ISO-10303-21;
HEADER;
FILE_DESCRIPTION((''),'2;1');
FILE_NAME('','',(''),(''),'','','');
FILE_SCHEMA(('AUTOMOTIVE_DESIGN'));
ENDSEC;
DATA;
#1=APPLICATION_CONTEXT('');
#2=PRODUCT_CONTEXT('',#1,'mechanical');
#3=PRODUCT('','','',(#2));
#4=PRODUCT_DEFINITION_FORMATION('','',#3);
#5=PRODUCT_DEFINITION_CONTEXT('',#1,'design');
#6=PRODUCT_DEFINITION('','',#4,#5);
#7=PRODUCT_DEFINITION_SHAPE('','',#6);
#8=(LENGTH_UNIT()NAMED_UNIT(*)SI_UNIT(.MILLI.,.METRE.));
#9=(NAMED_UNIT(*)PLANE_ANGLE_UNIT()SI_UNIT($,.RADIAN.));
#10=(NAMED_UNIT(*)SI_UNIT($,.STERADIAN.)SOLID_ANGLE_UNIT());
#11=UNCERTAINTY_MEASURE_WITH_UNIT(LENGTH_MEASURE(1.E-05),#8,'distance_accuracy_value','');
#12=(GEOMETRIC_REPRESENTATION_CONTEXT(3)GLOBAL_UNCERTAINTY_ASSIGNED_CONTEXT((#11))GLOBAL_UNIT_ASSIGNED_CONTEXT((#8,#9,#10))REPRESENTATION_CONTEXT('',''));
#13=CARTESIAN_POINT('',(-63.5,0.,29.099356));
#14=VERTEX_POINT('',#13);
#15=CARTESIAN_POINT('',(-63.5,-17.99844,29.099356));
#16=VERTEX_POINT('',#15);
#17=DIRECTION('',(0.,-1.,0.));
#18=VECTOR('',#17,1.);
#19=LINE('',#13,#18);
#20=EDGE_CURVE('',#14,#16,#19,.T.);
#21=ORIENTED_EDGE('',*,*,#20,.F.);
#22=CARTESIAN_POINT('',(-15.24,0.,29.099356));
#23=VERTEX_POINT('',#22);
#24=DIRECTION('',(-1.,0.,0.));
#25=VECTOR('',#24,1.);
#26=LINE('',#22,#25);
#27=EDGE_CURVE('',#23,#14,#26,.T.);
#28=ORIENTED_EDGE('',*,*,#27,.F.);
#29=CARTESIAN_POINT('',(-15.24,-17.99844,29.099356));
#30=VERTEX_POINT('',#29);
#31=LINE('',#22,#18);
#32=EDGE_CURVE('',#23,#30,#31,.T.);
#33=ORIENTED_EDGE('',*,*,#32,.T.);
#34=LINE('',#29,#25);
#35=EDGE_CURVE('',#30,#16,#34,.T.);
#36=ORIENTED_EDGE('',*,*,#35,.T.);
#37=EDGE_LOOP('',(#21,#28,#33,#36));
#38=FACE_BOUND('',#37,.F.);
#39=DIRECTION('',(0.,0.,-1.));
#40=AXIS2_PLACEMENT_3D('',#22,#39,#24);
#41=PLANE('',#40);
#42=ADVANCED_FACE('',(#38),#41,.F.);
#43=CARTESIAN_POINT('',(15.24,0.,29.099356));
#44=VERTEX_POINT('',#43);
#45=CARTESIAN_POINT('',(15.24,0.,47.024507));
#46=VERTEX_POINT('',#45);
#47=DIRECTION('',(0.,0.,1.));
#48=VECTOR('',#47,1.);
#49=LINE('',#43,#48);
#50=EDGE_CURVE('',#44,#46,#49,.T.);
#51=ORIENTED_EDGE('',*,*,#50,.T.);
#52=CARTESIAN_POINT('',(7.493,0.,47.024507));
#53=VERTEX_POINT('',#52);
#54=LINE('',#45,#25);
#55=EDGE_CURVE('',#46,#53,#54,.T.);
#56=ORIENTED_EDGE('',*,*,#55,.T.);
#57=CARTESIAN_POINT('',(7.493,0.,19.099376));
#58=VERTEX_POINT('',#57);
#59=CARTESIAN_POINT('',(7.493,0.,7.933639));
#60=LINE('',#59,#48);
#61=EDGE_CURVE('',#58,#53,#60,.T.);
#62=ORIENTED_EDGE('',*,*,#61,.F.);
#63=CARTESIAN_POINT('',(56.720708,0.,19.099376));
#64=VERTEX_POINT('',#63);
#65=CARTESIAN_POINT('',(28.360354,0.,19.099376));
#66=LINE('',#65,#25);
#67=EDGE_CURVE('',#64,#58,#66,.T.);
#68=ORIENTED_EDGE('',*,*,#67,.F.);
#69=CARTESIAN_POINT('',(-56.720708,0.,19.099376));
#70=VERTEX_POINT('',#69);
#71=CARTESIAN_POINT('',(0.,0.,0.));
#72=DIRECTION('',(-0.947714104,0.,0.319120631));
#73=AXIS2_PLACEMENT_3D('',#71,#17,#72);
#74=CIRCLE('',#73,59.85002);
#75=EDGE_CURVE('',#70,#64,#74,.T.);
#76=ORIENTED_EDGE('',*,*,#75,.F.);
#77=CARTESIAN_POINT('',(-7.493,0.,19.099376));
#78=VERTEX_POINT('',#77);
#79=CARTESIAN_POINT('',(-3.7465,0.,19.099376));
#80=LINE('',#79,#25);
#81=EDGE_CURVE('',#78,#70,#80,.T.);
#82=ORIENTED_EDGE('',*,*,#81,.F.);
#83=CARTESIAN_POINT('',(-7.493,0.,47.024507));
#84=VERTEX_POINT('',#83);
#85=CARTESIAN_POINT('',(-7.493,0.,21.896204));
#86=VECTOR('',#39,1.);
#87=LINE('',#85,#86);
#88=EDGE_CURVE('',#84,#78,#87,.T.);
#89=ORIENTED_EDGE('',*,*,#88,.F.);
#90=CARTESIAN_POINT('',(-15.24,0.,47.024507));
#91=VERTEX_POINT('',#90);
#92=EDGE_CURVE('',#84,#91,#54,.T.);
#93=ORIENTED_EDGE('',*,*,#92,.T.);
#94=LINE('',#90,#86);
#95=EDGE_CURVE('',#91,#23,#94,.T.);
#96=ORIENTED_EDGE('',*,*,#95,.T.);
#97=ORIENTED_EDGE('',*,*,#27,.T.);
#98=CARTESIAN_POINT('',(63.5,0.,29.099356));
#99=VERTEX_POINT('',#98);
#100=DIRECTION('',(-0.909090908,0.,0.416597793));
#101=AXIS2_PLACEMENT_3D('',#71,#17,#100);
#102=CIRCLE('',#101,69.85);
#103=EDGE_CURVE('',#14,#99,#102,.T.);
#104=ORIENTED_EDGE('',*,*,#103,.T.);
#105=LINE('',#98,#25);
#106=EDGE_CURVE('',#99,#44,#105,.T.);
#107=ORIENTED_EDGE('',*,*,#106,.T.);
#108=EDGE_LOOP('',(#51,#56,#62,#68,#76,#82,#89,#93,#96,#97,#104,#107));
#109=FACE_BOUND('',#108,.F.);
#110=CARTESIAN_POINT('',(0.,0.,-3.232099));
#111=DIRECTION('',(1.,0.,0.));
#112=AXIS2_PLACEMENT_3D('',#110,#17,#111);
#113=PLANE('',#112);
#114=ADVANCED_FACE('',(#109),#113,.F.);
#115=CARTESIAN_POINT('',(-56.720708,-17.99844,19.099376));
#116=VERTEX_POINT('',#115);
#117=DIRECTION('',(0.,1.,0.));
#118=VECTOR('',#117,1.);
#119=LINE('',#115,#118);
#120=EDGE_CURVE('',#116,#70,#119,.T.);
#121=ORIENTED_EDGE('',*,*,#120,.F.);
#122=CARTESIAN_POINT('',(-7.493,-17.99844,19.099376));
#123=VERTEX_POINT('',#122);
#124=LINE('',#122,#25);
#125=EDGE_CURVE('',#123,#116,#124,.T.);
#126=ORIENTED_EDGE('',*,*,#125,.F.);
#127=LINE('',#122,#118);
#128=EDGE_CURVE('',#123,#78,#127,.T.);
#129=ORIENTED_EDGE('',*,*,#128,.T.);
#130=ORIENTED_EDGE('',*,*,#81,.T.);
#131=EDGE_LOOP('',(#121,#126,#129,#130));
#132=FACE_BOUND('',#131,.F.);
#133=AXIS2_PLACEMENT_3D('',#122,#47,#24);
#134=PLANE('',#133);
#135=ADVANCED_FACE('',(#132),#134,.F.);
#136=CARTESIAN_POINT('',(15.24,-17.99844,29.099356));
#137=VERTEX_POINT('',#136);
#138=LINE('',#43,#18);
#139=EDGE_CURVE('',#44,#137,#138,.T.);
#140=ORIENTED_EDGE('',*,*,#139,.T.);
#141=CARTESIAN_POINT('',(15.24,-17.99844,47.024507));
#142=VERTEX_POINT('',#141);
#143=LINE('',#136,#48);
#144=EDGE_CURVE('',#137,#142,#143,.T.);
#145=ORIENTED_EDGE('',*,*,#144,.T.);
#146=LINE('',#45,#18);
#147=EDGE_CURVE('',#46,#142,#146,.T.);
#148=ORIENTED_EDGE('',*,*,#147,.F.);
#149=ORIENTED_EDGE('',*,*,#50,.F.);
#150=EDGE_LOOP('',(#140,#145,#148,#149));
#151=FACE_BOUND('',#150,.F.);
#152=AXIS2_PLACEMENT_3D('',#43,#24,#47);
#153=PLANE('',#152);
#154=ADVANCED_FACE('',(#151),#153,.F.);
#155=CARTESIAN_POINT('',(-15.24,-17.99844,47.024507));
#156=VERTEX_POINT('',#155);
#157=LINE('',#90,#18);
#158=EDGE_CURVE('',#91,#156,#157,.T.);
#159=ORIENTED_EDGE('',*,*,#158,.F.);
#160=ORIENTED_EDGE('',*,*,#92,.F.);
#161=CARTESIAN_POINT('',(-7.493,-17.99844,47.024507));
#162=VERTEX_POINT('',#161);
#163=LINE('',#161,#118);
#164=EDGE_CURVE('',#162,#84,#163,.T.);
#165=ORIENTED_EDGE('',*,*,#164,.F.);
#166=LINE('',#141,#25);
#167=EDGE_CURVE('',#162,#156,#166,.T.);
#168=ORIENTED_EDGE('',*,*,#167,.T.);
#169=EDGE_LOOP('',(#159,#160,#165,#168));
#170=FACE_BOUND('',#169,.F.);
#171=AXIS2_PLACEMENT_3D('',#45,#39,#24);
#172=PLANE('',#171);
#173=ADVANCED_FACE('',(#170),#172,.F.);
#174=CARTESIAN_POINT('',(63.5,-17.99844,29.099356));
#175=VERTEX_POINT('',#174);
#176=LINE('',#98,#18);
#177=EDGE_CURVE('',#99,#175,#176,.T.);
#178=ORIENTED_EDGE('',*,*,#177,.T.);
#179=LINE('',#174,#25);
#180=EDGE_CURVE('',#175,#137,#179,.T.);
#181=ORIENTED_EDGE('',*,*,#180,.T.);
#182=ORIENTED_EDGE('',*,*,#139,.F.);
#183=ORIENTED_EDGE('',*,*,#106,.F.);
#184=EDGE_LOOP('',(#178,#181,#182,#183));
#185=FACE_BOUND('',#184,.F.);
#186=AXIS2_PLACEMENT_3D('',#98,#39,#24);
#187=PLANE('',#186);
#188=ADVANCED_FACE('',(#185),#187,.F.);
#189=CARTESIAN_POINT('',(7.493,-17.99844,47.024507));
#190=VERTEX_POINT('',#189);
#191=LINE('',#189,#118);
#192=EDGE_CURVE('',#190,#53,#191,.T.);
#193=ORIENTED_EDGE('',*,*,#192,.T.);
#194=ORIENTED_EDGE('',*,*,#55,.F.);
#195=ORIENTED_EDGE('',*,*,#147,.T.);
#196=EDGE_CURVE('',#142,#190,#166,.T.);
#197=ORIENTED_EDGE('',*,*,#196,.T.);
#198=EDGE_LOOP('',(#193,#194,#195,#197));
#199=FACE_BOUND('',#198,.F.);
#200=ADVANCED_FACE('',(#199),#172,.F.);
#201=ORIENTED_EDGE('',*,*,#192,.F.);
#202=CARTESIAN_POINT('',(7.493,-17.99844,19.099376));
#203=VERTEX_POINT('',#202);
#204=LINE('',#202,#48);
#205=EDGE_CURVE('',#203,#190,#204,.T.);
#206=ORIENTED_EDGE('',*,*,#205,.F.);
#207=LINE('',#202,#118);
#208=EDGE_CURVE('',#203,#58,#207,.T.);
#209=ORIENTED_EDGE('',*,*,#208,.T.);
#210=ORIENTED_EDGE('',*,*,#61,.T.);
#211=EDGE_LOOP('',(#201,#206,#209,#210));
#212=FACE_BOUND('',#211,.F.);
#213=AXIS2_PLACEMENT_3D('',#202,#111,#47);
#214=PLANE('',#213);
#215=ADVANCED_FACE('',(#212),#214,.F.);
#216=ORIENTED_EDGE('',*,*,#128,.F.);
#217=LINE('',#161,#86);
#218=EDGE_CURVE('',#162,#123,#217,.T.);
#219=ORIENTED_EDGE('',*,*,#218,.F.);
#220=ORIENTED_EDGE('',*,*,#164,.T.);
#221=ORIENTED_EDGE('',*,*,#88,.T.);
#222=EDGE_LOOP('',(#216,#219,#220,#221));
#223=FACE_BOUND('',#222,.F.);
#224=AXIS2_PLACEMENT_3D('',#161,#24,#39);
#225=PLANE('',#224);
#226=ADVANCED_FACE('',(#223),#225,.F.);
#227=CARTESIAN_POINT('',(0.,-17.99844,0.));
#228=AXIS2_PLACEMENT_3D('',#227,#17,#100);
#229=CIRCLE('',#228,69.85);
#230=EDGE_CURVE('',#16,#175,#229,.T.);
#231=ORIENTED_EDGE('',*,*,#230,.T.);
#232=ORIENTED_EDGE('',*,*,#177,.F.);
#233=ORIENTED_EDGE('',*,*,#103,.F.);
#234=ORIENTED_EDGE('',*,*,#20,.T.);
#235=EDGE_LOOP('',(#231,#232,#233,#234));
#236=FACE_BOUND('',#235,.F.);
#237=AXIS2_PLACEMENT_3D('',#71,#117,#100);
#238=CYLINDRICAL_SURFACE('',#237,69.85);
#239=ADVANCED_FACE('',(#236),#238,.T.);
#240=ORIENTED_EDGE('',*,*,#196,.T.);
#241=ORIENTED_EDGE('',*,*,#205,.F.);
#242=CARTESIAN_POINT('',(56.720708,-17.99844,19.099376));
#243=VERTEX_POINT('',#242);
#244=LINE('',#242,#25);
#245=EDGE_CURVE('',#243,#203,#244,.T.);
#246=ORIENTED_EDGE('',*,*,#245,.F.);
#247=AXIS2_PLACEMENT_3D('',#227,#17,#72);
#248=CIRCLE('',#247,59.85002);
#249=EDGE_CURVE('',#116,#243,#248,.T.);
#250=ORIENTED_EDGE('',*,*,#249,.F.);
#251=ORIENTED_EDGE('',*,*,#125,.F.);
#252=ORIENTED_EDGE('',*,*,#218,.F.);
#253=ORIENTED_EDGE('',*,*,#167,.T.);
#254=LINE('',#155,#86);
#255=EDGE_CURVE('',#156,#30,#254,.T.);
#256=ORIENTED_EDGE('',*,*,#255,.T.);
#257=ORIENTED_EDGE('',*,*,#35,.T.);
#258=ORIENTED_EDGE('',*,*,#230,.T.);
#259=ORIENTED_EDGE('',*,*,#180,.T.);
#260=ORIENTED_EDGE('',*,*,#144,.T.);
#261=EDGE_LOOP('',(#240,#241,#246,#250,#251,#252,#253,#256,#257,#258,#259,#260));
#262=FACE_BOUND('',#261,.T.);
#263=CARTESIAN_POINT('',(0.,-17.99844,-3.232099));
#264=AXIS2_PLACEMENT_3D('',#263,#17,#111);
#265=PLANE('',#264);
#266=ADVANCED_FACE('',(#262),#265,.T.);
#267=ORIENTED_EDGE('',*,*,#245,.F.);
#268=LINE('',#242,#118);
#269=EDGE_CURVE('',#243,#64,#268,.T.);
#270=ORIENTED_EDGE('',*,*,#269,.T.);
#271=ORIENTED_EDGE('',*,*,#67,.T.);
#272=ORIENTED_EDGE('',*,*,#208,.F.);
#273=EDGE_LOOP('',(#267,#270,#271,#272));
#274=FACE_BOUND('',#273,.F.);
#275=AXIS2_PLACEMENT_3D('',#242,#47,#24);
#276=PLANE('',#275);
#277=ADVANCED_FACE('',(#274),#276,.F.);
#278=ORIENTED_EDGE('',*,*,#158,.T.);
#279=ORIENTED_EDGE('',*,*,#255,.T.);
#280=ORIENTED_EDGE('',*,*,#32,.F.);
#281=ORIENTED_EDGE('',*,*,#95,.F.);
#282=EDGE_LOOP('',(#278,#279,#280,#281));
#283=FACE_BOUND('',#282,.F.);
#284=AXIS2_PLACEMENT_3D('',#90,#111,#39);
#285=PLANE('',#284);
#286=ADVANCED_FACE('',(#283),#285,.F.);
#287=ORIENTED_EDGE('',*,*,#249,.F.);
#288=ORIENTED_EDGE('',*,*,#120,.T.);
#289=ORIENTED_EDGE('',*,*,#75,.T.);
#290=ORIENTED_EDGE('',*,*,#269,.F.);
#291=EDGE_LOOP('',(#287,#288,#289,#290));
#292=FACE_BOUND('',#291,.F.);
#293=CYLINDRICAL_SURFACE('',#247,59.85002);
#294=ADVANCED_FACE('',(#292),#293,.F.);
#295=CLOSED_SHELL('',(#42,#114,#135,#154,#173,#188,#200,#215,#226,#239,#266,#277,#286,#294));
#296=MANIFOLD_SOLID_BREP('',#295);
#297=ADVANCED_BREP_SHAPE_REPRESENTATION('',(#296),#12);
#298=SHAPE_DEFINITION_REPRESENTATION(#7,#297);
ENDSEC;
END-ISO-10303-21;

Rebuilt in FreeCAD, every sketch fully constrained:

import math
import FreeCAD as App
import Part
import Sketcher
Q = App.Units.Quantity

doc = App.newDocument("Part")
params = doc.addObject("Spreadsheet::Sheet", "Params")
for row, (alias, value) in enumerate([
    ("sketch1_radius", "2.75 in"),
    ("sketch1_width", "1.9 in"),
    ("sketch1_width2", "1.2 in"),
    ("pad1_length", "0.7086 in"),
    ("sketch2_width", "0.59 in"),
], start=1):
    params.set(f"A{row}", alias)
    params.set(f"B{row}", "=" + value)
    params.setAlias(f"B{row}", alias)

body = doc.addObject("PartDesign::Body", "Body")

sketch1 = body.newObject("Sketcher::SketchObject", "Sketch")
sketch1.AttachmentSupport = (doc.getObject("XZ_Plane"), [""])
sketch1.MapMode = "FlatFace"
sketch1.addGeometry([
    Part.LineSegment(App.Vector(-15, 29, 0), App.Vector(-64, 29, 0)),
    Part.ArcOfCircle(Part.Circle(App.Vector(0, 0, 0), App.Vector(0, 0, 1), 70), math.radians(155), math.radians(385)),
    Part.LineSegment(App.Vector(64, 29, 0), App.Vector(15, 29, 0)),
    Part.LineSegment(App.Vector(15, 29, 0), App.Vector(15, 47, 0)),
    Part.LineSegment(App.Vector(15, 47, 0), App.Vector(-15, 47, 0)),
    Part.LineSegment(App.Vector(-15, 47, 0), App.Vector(-15, 29, 0)),
], False)
sketch1.addConstraint([
    Sketcher.Constraint("Coincident", 0, 2, 1, 1),
    Sketcher.Constraint("Coincident", 1, 2, 2, 1),
    Sketcher.Constraint("Coincident", 2, 2, 3, 1),
    Sketcher.Constraint("Coincident", 3, 2, 4, 1),
    Sketcher.Constraint("Coincident", 4, 2, 5, 1),
    Sketcher.Constraint("Coincident", 5, 2, 0, 1),
    Sketcher.Constraint("Horizontal", 0),
    Sketcher.Constraint("Horizontal", 2),
    Sketcher.Constraint("Vertical", 3),
    Sketcher.Constraint("Horizontal", 4),
    Sketcher.Constraint("Vertical", 5),
    Sketcher.Constraint("Coincident", 1, 3, -1, 1),
    Sketcher.Constraint("Symmetric", 2, 2, 5, 2, -2),
    Sketcher.Constraint("Radius", 1, Q("2.75 in")),
    Sketcher.Constraint("DistanceX", 0, 2, 0, 1, Q("1.9 in")),
    Sketcher.Constraint("DistanceX", 4, 2, 4, 1, Q("1.2 in")),
    Sketcher.Constraint("DistanceY", 3, 1, 3, 2, 17.925151),
])
sketch1.setExpression("Constraints[13]", "Params.sketch1_radius")
sketch1.setExpression("Constraints[14]", "Params.sketch1_width")
sketch1.setExpression("Constraints[15]", "Params.sketch1_width2")
pad1 = body.newObject("PartDesign::Pad", "Pad")
pad1.Profile = sketch1
pad1.setExpression("Length", "Params.pad1_length")

sketch2 = body.newObject("Sketcher::SketchObject", "Sketch001")
sketch2.AttachmentSupport = (doc.getObject("XZ_Plane"), [""])
sketch2.MapMode = "FlatFace"
sketch2.AttachmentOffset = App.Placement(App.Vector(0, 0, 0.7086 * 25.4), App.Rotation())
sketch2.addGeometry([
    Part.LineSegment(App.Vector(-7, 19, 0), App.Vector(-57, 19, 0)),
    Part.ArcOfCircle(Part.Circle(App.Vector(0, 0, 0), App.Vector(0, 0, 1), 60), math.radians(161), math.radians(379)),
    Part.LineSegment(App.Vector(57, 19, 0), App.Vector(7, 19, 0)),
    Part.LineSegment(App.Vector(7, 19, 0), App.Vector(7, 47, 0)),
    Part.LineSegment(App.Vector(7, 47, 0), App.Vector(-7, 47, 0)),
    Part.LineSegment(App.Vector(-7, 47, 0), App.Vector(-7, 19, 0)),
], False)
sketch2.addConstraint([
    Sketcher.Constraint("Coincident", 0, 2, 1, 1),
    Sketcher.Constraint("Coincident", 1, 2, 2, 1),
    Sketcher.Constraint("Coincident", 2, 2, 3, 1),
    Sketcher.Constraint("Coincident", 3, 2, 4, 1),
    Sketcher.Constraint("Coincident", 4, 2, 5, 1),
    Sketcher.Constraint("Coincident", 5, 2, 0, 1),
    Sketcher.Constraint("Horizontal", 0),
    Sketcher.Constraint("Horizontal", 2),
    Sketcher.Constraint("Vertical", 3),
    Sketcher.Constraint("Horizontal", 4),
    Sketcher.Constraint("Vertical", 5),
    Sketcher.Constraint("Coincident", 1, 3, -1, 1),
    Sketcher.Constraint("Symmetric", 2, 2, 5, 2, -2),
    Sketcher.Constraint("DistanceX", 4, 2, 4, 1, Q("0.59 in")),
    Sketcher.Constraint("Radius", 1, Q("2.3563 in")),
    Sketcher.Constraint("DistanceY", 3, 1, 3, 2, 27.925131),
    Sketcher.Constraint("DistanceX", 0, 2, 0, 1, 49.227708),
])
sketch2.setExpression("Constraints[13]", "Params.sketch2_width")
pocket1 = body.newObject("PartDesign::Pocket", "Pocket")
pocket1.Profile = sketch2
pocket1.Type = "ThroughAll"

doc.recompute()
